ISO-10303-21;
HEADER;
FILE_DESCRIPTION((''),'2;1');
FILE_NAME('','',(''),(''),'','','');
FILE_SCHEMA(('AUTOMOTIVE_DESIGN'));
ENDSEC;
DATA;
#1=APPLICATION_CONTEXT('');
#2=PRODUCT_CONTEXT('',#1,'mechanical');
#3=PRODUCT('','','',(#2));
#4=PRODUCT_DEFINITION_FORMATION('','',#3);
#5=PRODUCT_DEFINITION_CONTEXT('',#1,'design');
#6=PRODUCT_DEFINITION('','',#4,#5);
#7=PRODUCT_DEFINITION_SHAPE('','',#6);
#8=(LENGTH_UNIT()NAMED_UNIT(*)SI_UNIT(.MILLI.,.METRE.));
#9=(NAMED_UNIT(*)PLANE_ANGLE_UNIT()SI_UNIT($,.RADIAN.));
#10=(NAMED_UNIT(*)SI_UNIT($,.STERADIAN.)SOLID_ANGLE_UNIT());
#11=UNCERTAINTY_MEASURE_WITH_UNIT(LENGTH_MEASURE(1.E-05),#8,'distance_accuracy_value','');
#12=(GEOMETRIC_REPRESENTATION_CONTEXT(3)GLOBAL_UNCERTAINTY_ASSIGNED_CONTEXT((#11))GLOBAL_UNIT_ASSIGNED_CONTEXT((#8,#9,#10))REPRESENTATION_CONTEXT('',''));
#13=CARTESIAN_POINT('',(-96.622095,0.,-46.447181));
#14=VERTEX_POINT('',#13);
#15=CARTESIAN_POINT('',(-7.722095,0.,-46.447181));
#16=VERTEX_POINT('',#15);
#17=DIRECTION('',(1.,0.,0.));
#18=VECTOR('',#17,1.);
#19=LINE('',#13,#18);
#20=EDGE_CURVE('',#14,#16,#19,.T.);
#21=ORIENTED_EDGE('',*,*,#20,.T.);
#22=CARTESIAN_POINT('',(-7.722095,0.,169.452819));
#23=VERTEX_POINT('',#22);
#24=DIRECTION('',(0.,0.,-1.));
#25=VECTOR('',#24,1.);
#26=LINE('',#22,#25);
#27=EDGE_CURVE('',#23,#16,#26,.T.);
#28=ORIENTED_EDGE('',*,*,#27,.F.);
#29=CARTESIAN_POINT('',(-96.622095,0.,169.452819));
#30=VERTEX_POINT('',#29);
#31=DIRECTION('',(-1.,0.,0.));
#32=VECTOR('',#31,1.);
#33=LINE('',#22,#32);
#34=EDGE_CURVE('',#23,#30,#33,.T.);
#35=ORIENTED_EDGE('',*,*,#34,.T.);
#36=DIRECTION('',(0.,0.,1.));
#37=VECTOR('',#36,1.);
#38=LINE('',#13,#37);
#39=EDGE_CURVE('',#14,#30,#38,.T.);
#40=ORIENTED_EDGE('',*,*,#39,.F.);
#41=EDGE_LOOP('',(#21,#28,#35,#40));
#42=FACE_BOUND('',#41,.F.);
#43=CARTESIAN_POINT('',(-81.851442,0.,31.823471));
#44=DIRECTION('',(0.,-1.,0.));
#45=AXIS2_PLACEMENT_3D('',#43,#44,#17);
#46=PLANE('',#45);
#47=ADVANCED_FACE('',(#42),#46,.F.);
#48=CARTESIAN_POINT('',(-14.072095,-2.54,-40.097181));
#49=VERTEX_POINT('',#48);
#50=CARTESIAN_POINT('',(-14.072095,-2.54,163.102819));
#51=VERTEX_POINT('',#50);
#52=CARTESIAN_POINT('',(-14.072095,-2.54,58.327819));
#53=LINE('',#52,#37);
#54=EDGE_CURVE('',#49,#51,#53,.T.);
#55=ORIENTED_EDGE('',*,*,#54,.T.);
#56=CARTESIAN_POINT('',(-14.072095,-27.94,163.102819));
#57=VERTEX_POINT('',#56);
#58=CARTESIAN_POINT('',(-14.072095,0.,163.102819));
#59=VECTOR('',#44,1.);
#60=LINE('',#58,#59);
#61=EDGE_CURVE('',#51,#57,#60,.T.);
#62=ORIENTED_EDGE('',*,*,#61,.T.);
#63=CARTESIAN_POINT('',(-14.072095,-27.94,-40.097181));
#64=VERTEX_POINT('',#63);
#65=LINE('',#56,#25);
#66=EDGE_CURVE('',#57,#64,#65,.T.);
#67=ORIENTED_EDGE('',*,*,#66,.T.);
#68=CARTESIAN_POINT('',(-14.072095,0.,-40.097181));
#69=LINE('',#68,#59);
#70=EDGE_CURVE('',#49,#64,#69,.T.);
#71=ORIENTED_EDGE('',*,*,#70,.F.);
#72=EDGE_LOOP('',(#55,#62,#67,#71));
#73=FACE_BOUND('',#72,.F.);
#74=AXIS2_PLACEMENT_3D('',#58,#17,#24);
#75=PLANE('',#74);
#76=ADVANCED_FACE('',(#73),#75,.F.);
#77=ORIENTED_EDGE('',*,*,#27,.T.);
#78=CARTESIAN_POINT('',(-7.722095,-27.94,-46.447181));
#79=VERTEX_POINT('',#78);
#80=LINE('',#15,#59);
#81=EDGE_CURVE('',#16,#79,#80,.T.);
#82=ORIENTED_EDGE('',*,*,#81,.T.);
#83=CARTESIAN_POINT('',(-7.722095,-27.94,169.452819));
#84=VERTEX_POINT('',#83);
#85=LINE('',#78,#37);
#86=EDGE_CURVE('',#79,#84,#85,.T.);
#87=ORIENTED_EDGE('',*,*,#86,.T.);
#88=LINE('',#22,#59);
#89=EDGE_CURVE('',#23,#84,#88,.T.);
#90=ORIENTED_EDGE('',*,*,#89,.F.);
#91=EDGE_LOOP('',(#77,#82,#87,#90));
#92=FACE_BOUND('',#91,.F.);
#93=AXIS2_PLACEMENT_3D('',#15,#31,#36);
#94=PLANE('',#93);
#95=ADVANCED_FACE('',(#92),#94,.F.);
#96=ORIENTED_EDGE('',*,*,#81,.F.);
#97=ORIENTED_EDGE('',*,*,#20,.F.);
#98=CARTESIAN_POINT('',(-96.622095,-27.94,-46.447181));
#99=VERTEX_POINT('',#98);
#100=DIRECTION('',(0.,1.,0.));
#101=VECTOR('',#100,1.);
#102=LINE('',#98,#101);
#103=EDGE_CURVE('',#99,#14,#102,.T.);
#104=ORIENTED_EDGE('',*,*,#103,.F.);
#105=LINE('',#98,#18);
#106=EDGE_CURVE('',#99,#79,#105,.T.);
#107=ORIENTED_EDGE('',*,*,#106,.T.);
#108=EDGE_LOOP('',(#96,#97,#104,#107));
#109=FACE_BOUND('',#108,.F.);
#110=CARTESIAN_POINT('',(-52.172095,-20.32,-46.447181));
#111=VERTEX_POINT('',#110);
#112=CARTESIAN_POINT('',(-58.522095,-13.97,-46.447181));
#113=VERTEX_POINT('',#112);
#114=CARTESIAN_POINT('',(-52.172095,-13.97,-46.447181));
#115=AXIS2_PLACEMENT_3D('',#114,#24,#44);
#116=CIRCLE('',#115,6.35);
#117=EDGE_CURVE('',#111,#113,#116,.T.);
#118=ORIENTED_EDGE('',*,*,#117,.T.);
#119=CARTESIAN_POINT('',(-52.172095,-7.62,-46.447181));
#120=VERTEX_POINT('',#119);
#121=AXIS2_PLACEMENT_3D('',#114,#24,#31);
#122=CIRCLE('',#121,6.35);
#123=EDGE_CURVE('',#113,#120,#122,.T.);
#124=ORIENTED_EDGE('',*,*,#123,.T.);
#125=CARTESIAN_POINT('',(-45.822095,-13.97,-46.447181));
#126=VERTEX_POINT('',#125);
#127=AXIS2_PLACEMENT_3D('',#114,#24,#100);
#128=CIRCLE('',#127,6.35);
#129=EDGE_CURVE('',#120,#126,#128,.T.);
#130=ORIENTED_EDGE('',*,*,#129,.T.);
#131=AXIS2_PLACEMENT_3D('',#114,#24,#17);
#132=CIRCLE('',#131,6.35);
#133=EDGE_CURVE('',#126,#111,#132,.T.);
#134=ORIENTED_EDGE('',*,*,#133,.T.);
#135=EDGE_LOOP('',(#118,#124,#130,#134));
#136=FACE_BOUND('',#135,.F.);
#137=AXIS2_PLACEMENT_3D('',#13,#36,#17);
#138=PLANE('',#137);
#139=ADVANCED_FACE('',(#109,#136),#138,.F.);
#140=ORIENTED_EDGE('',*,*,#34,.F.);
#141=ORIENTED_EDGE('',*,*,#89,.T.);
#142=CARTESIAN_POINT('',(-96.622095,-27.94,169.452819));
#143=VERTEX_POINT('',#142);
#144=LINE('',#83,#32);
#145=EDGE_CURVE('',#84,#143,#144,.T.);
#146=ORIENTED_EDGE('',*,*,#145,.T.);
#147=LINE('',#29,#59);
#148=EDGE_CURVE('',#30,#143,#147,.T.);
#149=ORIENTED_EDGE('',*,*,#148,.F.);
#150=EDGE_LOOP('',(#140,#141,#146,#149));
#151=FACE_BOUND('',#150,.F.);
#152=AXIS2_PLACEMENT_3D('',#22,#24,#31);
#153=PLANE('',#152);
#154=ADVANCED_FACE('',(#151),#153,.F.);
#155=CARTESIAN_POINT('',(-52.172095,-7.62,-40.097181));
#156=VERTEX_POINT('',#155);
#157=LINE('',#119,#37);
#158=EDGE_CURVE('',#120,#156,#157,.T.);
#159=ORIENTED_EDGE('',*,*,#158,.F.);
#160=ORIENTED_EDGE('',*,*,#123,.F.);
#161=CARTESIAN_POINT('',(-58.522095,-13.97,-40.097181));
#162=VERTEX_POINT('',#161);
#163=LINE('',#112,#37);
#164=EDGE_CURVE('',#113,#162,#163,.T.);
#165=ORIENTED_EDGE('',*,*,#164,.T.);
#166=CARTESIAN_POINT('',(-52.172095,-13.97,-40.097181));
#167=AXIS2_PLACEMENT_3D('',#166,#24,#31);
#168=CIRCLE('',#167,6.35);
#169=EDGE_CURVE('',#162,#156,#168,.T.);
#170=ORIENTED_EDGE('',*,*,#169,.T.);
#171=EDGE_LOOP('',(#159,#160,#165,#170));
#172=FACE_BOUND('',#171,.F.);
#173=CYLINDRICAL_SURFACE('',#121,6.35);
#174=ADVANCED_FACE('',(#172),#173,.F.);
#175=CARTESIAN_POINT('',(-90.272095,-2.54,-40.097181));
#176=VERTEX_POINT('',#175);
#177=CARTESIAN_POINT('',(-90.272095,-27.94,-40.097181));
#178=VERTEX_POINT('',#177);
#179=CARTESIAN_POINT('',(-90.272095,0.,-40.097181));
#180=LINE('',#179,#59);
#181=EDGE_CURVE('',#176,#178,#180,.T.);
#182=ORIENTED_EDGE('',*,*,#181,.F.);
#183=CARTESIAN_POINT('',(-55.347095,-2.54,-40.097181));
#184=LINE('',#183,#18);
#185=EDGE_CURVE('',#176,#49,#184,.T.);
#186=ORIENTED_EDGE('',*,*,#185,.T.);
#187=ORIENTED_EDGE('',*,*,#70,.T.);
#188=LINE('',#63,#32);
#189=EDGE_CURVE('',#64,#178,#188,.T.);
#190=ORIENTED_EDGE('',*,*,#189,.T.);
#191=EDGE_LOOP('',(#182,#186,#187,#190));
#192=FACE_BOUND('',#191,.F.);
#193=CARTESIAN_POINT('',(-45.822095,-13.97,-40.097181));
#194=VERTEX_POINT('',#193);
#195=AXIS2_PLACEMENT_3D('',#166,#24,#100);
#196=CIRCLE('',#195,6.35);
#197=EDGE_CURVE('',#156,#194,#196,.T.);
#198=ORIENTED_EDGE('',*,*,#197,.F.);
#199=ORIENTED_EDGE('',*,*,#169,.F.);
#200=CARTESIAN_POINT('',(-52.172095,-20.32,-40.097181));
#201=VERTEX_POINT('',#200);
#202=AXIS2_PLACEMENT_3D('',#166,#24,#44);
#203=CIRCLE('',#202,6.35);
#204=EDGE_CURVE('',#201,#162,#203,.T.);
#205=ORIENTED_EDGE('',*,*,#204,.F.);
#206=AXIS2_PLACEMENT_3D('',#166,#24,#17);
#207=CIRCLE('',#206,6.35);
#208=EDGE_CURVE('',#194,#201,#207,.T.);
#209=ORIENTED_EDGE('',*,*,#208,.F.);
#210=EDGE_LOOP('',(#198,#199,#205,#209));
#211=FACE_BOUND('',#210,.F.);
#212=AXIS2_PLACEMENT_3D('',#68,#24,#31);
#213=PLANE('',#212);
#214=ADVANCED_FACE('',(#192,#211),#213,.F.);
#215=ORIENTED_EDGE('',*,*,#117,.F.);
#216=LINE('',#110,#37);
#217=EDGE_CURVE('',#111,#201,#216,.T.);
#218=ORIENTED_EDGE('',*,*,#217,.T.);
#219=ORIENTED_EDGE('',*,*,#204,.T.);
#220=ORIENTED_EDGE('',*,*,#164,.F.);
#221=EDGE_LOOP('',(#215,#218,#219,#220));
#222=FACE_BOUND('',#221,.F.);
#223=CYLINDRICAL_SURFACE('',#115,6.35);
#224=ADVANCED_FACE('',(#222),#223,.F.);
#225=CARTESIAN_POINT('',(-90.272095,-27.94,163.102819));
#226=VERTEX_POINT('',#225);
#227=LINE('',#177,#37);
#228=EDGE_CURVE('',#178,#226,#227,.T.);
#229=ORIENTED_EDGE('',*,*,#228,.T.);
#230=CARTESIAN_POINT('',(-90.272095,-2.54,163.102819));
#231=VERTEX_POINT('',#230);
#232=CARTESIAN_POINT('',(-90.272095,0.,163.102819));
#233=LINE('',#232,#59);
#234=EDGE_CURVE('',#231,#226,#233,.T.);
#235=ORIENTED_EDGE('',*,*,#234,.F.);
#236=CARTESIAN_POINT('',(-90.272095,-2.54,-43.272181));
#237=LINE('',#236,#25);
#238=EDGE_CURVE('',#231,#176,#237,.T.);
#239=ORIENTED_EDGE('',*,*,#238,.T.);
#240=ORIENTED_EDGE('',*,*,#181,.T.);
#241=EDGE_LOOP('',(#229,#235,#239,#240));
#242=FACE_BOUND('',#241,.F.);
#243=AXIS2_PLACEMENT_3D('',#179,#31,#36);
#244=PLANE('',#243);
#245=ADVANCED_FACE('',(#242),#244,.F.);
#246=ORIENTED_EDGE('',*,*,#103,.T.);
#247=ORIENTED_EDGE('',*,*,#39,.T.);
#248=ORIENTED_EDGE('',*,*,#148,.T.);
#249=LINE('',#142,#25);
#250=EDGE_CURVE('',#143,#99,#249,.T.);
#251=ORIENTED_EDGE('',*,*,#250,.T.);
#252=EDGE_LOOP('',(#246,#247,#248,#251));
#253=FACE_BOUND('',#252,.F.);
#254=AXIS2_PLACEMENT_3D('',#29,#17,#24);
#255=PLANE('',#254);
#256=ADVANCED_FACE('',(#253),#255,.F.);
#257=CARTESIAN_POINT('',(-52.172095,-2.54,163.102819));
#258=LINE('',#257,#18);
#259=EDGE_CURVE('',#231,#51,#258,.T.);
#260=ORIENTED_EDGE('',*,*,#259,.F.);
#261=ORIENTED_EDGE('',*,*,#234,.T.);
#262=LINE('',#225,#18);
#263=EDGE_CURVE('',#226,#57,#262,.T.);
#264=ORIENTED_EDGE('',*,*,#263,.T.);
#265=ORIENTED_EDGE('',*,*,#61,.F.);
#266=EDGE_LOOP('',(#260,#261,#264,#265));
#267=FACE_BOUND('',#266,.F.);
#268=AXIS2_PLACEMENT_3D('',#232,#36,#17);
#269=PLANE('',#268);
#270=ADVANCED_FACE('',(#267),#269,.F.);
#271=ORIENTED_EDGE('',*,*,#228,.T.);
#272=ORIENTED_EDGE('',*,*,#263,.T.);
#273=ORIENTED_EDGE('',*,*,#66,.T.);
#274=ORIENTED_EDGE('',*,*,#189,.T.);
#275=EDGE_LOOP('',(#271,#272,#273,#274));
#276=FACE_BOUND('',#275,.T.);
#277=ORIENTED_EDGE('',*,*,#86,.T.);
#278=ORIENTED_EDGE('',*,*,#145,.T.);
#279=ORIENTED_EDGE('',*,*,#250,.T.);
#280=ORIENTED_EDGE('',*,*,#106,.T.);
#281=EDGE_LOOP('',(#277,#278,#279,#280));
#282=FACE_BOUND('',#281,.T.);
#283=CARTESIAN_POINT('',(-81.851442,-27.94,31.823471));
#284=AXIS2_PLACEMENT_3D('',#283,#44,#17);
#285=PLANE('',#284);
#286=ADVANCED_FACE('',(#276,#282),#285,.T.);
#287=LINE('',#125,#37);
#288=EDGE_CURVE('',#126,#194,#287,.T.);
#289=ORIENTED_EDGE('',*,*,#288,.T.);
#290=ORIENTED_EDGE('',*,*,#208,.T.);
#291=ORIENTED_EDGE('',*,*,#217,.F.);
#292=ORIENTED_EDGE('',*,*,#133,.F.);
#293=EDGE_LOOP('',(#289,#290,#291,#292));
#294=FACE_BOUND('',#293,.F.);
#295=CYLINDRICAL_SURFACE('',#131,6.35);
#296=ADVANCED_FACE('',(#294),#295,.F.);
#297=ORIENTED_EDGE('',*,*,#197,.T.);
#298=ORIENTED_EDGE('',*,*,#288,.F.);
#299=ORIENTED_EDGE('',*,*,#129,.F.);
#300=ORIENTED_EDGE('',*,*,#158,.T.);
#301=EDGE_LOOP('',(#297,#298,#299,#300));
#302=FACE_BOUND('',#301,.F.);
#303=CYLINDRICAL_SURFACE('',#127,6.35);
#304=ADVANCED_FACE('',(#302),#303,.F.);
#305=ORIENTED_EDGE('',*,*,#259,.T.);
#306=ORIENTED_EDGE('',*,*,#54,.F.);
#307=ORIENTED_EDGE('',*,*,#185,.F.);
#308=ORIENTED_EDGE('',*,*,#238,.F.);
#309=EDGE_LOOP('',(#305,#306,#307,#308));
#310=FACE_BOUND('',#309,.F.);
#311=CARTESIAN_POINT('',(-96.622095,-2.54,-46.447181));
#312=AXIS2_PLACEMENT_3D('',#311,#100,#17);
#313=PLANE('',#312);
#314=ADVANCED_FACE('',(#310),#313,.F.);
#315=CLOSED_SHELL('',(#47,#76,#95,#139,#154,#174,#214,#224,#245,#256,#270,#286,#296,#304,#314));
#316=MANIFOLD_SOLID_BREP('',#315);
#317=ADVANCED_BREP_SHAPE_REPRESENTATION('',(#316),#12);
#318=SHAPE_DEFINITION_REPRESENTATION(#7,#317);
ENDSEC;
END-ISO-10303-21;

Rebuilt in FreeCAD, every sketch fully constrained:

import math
import FreeCAD as App
import Part
import Sketcher
Q = App.Units.Quantity


def add_polygon(sketch, points):
    """Adds a closed chain of lines whose ends are joined by coincident constraints."""
    first, n = sketch.GeometryCount, len(points)
    for a, b in zip(points, points[1:] + points[:1]):
        sketch.addGeometry(Part.LineSegment(App.Vector(*a, 0), App.Vector(*b, 0)), False)
    for i in range(n):
        sketch.addConstraint(Sketcher.Constraint("Coincident", first + i, 2, first + (i + 1) % n, 1))

doc = App.newDocument("Part")
body = doc.addObject("PartDesign::Body", "Body")

# Sketch on XZ plane
sketch1 = body.newObject("Sketcher::SketchObject", "Sketch")
sketch1.AttachmentSupport = (doc.getObject("XZ_Plane"), [""])
sketch1.MapMode = "FlatFace"
add_polygon(sketch1, [(-96.622095, -46.447181), (-7.722095, -46.447181), (-7.722095, 169.452819), (-96.622095, 169.452819)])  # lines 0-3
add_polygon(sketch1, [(-14.072095, 163.102819), (-14.072095, -40.097181), (-90.272095, -40.097181), (-90.272095, 163.102819)])  # lines 4-7
sketch1.addConstraint(Sketcher.Constraint("Horizontal", 0))
sketch1.addConstraint(Sketcher.Constraint("Vertical", 1))
sketch1.addConstraint(Sketcher.Constraint("Horizontal", 2))
sketch1.addConstraint(Sketcher.Constraint("Vertical", 3))
sketch1.addConstraint(Sketcher.Constraint("Vertical", 4))
sketch1.addConstraint(Sketcher.Constraint("Horizontal", 5))
sketch1.addConstraint(Sketcher.Constraint("Vertical", 6))
sketch1.addConstraint(Sketcher.Constraint("Horizontal", 7))
sketch1.addConstraint(Sketcher.Constraint("DistanceX", 5, 2, 5, 1, Q("3 in")))
sketch1.addConstraint(Sketcher.Constraint("DistanceY", 4, 2, 4, 1, Q("8 in")))
sketch1.addConstraint(Sketcher.Constraint("DistanceX", 0, 1, 0, 2, Q("3.5 in")))
sketch1.addConstraint(Sketcher.Constraint("DistanceY", 1, 1, 1, 2, Q("8.5 in")))
sketch1.addConstraint(Sketcher.Constraint("DistanceX", 4, 2, 0, 2, Q("0.25 in")))
sketch1.addConstraint(Sketcher.Constraint("DistanceY", 0, 2, 4, 2, Q("0.25 in")))
sketch1.addConstraint(Sketcher.Constraint("DistanceY", 0, 2, -1, 1, 46.447181))
sketch1.addConstraint(Sketcher.Constraint("DistanceX", 0, 2, -1, 1, 7.722095))
pad1 = body.newObject("PartDesign::Pad", "Pad")
pad1.Profile = sketch1
pad1.Length = Q("1.1 in")

# Sketch on XY plane
sketch2 = body.newObject("Sketcher::SketchObject", "Sketch001")
sketch2.AttachmentSupport = (doc.getObject("XY_Plane"), [""])
sketch2.MapMode = "FlatFace"
sketch2.AttachmentOffset = App.Placement(App.Vector(0, 0, -46.447181), App.Rotation())
add_polygon(sketch2, [(-96.622095, -2.54), (-96.622095, 0), (-7.722095, 0), (-7.722095, -2.54)])  # lines 0-3
sketch2.addConstraint(Sketcher.Constraint("Vertical", 0))
sketch2.addConstraint(Sketcher.Constraint("Horizontal", 1))
sketch2.addConstraint(Sketcher.Constraint("Vertical", 2))
sketch2.addConstraint(Sketcher.Constraint("Horizontal", 3))
sketch2.addConstraint(Sketcher.Constraint("PointOnObject", 0, 2, -1))
sketch2.addConstraint(Sketcher.Constraint("DistanceX", 1, 1, 1, 2, Q("3.5 in")))
sketch2.addConstraint(Sketcher.Constraint("DistanceY", 0, 1, 0, 2, Q("0.1 in")))
sketch2.addConstraint(Sketcher.Constraint("DistanceX", 0, 2, -1, 1, 96.622095))
pad2 = body.newObject("PartDesign::Pad", "Pad001")
pad2.Profile = sketch2
pad2.Length = Q("8.25 in")

# Sketch on XY plane
sketch3 = body.newObject("Sketcher::SketchObject", "Sketch002")
sketch3.AttachmentSupport = (doc.getObject("XY_Plane"), [""])
sketch3.MapMode = "FlatFace"
sketch3.AttachmentOffset = App.Placement(App.Vector(0, 0, -46.447181), App.Rotation())
sketch3.addGeometry(Part.ArcOfCircle(Part.Circle(App.Vector(-52.172095, -13.97, 0), App.Vector(0, 0, 1), 6.35), math.radians(0), math.radians(90)), False)
sketch3.addGeometry(Part.ArcOfCircle(Part.Circle(App.Vector(-52.172095, -13.97, 0), App.Vector(0, 0, 1), 6.35), math.radians(-90), math.radians(0)), False)
sketch3.addGeometry(Part.ArcOfCircle(Part.Circle(App.Vector(-52.172095, -13.97, 0), App.Vector(0, 0, 1), 6.35), math.radians(180), math.radians(270)), False)
sketch3.addGeometry(Part.ArcOfCircle(Part.Circle(App.Vector(-52.172095, -13.97, 0), App.Vector(0, 0, 1), 6.35), math.radians(90), math.radians(180)), False)
sketch3.addConstraint(Sketcher.Constraint("Tangent", 0, 1, 1, 2))
sketch3.addConstraint(Sketcher.Constraint("Tangent", 1, 1, 2, 2))
sketch3.addConstraint(Sketcher.Constraint("Tangent", 2, 1, 3, 2))
sketch3.addConstraint(Sketcher.Constraint("Tangent", 3, 1, 0, 2))
sketch3.addConstraint(Sketcher.Constraint("Equal", 0, 1))
sketch3.addConstraint(Sketcher.Constraint("Horizontal", 3, 3, 0, 1))
sketch3.addConstraint(Sketcher.Constraint("Horizontal", 0, 1, 2, 1))
sketch3.addConstraint(Sketcher.Constraint("Vertical", 3, 3, 1, 1))
sketch3.addConstraint(Sketcher.Constraint("Vertical", 1, 1, 3, 1))
sketch3.addConstraint(Sketcher.Constraint("Radius", 0, Q("0.25 in")))
sketch3.addConstraint(Sketcher.Constraint("DistanceY", 1, 1, -1, 1, Q("0.8 in")))
sketch3.addConstraint(Sketcher.Constraint("DistanceX", 0, 3, -1, 1, 52.172095))
pocket1 = body.newObject("PartDesign::Pocket", "Pocket")
pocket1.Profile = sketch3
pocket1.Length = Q("1 in")
pocket1.Reversed = True

doc.recompute()
